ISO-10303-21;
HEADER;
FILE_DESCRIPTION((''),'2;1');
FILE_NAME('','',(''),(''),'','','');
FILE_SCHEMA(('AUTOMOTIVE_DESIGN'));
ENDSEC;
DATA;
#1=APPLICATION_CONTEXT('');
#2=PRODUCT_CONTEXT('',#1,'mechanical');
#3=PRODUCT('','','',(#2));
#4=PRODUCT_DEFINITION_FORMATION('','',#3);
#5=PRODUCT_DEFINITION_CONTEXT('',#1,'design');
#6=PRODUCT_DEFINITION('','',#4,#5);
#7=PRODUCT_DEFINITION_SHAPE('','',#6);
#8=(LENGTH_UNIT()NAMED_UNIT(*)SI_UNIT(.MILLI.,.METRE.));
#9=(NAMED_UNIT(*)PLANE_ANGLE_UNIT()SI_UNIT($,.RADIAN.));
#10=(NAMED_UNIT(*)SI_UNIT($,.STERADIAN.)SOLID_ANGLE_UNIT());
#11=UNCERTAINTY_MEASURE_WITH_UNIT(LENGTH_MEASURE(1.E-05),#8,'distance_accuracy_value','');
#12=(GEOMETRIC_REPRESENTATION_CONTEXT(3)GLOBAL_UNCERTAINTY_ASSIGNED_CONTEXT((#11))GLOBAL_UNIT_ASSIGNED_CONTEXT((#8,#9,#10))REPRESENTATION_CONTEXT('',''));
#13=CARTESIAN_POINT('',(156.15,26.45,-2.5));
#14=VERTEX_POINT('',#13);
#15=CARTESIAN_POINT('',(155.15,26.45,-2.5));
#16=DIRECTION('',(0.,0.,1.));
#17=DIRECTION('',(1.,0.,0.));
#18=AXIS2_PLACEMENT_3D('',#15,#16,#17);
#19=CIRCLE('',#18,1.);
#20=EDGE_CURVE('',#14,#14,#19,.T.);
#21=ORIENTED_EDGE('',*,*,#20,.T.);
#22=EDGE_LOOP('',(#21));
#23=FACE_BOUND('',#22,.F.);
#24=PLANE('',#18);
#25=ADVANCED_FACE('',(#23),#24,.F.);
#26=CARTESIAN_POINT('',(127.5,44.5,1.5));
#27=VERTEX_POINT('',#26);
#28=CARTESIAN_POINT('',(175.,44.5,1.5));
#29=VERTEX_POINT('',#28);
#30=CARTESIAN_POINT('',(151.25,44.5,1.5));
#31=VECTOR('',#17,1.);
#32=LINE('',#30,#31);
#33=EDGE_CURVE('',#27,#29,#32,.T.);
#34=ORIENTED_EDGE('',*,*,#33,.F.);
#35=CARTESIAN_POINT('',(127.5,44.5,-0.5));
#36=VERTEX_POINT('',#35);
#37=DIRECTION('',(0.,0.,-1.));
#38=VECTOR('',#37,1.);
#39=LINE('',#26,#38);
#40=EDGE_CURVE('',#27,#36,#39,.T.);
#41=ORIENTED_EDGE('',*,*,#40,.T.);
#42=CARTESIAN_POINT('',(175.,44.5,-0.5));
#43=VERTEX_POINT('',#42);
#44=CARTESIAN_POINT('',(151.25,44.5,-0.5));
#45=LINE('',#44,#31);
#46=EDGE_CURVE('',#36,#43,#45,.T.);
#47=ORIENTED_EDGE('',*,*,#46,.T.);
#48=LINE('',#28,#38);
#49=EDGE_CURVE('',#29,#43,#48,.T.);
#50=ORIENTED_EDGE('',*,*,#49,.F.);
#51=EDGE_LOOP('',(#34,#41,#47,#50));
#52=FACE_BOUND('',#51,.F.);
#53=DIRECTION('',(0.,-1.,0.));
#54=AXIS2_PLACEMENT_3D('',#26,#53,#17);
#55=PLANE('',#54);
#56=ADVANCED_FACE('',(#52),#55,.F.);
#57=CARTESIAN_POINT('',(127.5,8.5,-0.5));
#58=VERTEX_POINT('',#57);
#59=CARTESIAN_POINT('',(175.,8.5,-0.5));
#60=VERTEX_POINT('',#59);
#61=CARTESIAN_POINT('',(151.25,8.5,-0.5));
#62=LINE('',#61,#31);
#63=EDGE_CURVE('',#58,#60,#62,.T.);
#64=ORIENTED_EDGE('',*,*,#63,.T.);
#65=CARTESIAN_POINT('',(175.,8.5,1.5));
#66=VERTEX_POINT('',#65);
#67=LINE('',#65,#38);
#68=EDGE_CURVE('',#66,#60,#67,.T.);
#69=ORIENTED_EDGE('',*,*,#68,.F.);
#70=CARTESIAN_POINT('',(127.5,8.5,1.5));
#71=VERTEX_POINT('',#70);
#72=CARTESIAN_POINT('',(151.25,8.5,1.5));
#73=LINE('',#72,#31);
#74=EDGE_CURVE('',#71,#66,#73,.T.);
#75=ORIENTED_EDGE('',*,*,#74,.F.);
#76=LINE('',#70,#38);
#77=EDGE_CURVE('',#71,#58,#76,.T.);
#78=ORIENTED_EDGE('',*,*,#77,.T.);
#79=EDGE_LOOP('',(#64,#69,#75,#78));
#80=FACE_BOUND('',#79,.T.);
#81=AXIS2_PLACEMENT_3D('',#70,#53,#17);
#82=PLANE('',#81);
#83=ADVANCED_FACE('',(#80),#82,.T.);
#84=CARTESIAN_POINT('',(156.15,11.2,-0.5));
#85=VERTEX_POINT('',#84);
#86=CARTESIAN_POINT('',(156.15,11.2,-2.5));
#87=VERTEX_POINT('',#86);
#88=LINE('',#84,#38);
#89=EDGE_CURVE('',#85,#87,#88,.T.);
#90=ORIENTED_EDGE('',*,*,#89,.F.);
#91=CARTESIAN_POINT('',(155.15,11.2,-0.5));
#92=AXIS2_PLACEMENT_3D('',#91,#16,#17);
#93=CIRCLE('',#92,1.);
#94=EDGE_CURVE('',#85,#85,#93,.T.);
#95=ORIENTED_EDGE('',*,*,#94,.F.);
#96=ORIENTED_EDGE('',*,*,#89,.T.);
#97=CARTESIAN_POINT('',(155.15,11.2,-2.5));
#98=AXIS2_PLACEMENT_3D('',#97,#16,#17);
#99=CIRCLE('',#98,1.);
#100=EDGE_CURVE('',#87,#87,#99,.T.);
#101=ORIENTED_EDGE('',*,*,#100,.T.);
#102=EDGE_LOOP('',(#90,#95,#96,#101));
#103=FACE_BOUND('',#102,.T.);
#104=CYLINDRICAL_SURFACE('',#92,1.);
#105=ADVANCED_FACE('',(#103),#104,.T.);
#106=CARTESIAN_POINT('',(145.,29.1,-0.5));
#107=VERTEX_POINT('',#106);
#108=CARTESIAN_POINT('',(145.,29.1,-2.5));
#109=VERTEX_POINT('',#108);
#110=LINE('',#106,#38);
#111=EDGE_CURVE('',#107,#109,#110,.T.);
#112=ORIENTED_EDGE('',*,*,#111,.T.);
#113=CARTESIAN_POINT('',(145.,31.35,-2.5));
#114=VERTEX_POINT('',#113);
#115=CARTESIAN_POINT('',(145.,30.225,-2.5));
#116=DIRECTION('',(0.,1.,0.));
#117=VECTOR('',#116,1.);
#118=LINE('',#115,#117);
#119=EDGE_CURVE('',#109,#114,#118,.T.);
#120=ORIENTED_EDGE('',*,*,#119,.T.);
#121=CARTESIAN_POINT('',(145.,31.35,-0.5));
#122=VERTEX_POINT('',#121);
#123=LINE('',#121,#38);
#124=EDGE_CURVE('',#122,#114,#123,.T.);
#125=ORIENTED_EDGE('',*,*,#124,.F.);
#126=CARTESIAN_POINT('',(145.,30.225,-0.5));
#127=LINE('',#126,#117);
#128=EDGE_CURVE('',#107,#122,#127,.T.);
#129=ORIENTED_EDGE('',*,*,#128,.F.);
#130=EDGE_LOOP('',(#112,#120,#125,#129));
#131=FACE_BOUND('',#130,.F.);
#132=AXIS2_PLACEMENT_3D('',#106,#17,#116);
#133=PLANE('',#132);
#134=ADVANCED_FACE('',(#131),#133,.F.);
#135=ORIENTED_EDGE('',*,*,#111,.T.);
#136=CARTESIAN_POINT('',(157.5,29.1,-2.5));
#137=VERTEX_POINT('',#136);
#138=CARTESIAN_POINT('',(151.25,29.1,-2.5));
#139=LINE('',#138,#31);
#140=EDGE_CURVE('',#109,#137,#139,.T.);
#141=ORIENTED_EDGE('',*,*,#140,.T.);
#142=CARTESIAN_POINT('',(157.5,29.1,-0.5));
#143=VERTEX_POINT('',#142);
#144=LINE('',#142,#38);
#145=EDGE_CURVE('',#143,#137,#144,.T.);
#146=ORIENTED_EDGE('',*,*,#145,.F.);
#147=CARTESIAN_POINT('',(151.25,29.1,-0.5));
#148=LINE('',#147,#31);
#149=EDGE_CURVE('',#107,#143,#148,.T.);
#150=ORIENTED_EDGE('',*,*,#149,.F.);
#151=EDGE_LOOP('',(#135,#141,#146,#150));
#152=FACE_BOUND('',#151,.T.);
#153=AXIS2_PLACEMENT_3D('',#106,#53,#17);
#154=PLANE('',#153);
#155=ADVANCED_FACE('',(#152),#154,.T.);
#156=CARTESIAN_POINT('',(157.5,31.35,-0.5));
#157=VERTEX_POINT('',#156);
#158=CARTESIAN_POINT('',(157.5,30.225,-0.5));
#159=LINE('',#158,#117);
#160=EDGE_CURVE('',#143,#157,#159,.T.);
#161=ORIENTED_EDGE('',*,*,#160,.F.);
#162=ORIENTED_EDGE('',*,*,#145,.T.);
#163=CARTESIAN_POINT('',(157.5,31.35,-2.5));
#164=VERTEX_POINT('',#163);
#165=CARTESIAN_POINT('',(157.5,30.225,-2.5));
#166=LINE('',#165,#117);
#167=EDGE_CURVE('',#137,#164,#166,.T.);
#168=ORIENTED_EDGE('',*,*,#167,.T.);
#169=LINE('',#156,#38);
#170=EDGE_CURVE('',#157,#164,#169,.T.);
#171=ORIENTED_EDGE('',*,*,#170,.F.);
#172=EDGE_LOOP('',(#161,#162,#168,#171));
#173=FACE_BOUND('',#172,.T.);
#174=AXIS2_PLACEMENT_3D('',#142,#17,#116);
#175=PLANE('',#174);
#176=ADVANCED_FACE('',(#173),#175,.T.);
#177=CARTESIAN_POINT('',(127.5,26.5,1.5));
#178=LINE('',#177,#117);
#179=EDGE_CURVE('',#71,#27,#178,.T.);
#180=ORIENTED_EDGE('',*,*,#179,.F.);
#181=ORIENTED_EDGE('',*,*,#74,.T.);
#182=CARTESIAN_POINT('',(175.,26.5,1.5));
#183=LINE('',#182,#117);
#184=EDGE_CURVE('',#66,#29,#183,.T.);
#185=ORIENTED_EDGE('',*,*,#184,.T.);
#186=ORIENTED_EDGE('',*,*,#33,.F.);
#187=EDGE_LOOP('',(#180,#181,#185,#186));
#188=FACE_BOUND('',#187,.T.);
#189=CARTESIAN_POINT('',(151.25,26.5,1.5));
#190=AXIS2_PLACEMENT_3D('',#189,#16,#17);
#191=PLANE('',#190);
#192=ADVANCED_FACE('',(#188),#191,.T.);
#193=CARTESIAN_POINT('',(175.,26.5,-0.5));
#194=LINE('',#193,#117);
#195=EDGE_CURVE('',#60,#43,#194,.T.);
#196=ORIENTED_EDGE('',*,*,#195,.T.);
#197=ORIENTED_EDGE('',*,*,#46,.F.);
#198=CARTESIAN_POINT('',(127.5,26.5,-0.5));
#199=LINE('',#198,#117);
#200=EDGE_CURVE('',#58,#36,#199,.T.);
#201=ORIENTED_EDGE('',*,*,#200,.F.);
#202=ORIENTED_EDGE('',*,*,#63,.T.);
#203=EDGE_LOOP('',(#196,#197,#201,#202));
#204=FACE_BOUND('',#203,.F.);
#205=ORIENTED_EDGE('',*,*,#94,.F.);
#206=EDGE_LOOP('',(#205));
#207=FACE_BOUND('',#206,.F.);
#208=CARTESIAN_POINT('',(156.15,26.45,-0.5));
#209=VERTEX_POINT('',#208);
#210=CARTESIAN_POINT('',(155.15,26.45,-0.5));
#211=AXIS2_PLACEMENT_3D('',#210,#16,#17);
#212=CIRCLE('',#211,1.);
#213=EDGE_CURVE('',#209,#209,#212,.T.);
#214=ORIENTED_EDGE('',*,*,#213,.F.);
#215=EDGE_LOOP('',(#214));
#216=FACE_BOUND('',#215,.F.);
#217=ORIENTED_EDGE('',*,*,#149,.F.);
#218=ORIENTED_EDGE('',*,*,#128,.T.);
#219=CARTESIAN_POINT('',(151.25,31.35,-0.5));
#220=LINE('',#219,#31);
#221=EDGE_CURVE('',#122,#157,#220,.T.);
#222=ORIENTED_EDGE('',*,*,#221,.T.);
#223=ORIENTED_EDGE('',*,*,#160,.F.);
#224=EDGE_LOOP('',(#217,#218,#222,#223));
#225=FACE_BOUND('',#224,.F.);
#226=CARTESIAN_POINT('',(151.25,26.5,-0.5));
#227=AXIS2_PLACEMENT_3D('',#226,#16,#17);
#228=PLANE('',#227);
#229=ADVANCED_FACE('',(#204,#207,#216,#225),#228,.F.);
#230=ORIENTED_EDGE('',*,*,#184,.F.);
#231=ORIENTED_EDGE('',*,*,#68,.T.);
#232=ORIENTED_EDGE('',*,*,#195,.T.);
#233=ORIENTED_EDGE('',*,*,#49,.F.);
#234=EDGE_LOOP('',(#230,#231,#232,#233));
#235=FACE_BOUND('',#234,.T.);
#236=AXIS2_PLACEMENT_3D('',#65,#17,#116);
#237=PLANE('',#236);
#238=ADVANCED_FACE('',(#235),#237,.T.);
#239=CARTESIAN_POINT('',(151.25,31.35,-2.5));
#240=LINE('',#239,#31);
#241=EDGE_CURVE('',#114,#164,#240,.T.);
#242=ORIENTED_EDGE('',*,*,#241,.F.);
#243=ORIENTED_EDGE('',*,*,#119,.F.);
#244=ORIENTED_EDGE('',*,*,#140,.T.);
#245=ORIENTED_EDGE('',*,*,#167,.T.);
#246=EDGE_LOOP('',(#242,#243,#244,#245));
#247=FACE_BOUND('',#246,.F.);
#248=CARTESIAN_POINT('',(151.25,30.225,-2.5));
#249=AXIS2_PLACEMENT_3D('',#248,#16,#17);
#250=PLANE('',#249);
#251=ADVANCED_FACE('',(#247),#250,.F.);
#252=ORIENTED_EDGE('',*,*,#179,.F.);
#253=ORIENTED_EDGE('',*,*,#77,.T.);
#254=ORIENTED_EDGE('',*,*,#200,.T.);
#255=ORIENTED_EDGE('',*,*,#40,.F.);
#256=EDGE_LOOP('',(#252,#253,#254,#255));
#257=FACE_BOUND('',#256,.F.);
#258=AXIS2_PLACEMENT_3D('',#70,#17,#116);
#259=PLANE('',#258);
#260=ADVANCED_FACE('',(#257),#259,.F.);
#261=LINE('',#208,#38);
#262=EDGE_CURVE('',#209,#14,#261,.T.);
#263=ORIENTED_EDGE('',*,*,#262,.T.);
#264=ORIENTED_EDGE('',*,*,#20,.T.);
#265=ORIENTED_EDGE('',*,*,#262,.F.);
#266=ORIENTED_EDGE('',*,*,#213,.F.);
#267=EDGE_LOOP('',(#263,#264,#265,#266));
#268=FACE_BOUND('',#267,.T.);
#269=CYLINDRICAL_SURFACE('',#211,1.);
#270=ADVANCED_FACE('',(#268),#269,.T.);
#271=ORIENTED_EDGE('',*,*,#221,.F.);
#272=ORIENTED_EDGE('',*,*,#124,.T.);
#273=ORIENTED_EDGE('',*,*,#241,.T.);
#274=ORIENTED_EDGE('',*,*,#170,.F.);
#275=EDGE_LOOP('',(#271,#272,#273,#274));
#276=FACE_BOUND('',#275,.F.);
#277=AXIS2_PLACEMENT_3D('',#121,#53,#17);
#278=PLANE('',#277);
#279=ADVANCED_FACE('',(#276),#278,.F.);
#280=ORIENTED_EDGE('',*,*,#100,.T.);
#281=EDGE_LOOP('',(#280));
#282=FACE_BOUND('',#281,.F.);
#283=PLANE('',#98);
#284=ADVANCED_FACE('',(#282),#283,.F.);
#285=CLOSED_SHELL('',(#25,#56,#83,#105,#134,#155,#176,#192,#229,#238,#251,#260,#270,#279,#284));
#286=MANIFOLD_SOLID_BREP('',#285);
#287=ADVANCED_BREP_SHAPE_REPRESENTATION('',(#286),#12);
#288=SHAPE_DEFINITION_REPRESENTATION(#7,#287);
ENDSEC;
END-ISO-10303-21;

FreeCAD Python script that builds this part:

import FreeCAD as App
import Part
import Sketcher
from FreeCAD import Vector
Q = App.Units.Quantity


def add_polygon(sketch, points):
    """Adds a closed chain of lines whose ends are joined by coincident constraints."""
    first, n = sketch.GeometryCount, len(points)
    for a, b in zip(points, points[1:] + points[:1]):
        sketch.addGeometry(Part.LineSegment(App.Vector(*a, 0), App.Vector(*b, 0)), False)
    for i in range(n):
        sketch.addConstraint(Sketcher.Constraint("Coincident", first + i, 2, first + (i + 1) % n, 1))

doc = App.newDocument("Part")
body = doc.addObject("PartDesign::Body", "Body")
body.AllowCompound = True

sketch1 = body.newObject("Sketcher::SketchObject", "Sketch")
sketch1.AttachmentSupport = (doc.getObject("XY_Plane"), [""])
sketch1.MapMode = "FlatFace"
sketch1.AttachmentOffset = App.Placement(Vector(0, 0, -0.5), App.Rotation())
sketch1.addGeometry(Part.Circle(Vector(155.15, 11.2, 0), Vector(0, 0, 1), 1), False)
sketch1.addGeometry(Part.Circle(Vector(155.15, 26.45, 0), Vector(0, 0, 1), 1), False)
add_polygon(sketch1, [(145, 31.35), (145, 29.1), (157.5, 29.1), (157.5, 31.35)])
sketch1.addConstraint([
    Sketcher.Constraint("Vertical", 2),
    Sketcher.Constraint("Horizontal", 3),
    Sketcher.Constraint("Vertical", 4),
    Sketcher.Constraint("Horizontal", 5),
    Sketcher.Constraint("Equal", 0, 1),
    Sketcher.Constraint("Vertical", 0, 3, 1, 3),
    Sketcher.Constraint("Diameter", 0, Q("2 mm")),
    Sketcher.Constraint("DistanceX", 3, 1, 3, 2, Q("12.5 mm")),
    Sketcher.Constraint("DistanceX", -1, 1, 2, 2, Q("145 mm")),
    Sketcher.Constraint("DistanceY", 2, 2, 2, 1, Q("2.25 mm")),
    Sketcher.Constraint("DistanceY", -1, 1, 0, 3, Q("11.2 mm")),
    Sketcher.Constraint("DistanceY", -1, 1, 2, 2, Q("29.1 mm")),
    Sketcher.Constraint("DistanceY", 1, 3, 4, 2, Q("4.9 mm")),
    Sketcher.Constraint("DistanceX", -1, 1, 0, 3, Q("155.15 mm")),
])
pad1 = body.newObject("PartDesign::Pad", "Pad")
pad1.Profile = sketch1
pad1.Length = 2
pad1.Reversed = True
body2 = doc.addObject("PartDesign::Body", "Body001")

sketch2 = body2.newObject("Sketcher::SketchObject", "Sketch001")
sketch2.AttachmentSupport = (doc.getObject("XY_Plane001"), [""])
sketch2.MapMode = "FlatFace"
sketch2.AttachmentOffset = App.Placement(Vector(0, 0, 1.5), App.Rotation())
add_polygon(sketch2, [(127.5, 44.5), (127.5, 8.5), (175, 8.5), (175, 44.5)])
sketch2.addConstraint([
    Sketcher.Constraint("Vertical", 0),
    Sketcher.Constraint("Horizontal", 1),
    Sketcher.Constraint("Vertical", 2),
    Sketcher.Constraint("Horizontal", 3),
    Sketcher.Constraint("DistanceY", 0, 2, 0, 1, Q("36 mm")),
    Sketcher.Constraint("DistanceX", 1, 1, 1, 2, Q("47.5 mm")),
    Sketcher.Constraint("DistanceX", -1, 1, 1, 2, Q("175 mm")),
    Sketcher.Constraint("DistanceY", -1, 1, 0, 2, Q("8.5 mm")),
])
pad2 = body2.newObject("PartDesign::Pad", "Pad001")
pad2.Profile = sketch2
pad2.Length = 2
pad2.Reversed = True
doc.recompute()

boolean = body2.newObject("PartDesign::Boolean", "Boolean")
boolean.Type = "Fuse"
boolean.addObjects([body])

doc.recompute()
